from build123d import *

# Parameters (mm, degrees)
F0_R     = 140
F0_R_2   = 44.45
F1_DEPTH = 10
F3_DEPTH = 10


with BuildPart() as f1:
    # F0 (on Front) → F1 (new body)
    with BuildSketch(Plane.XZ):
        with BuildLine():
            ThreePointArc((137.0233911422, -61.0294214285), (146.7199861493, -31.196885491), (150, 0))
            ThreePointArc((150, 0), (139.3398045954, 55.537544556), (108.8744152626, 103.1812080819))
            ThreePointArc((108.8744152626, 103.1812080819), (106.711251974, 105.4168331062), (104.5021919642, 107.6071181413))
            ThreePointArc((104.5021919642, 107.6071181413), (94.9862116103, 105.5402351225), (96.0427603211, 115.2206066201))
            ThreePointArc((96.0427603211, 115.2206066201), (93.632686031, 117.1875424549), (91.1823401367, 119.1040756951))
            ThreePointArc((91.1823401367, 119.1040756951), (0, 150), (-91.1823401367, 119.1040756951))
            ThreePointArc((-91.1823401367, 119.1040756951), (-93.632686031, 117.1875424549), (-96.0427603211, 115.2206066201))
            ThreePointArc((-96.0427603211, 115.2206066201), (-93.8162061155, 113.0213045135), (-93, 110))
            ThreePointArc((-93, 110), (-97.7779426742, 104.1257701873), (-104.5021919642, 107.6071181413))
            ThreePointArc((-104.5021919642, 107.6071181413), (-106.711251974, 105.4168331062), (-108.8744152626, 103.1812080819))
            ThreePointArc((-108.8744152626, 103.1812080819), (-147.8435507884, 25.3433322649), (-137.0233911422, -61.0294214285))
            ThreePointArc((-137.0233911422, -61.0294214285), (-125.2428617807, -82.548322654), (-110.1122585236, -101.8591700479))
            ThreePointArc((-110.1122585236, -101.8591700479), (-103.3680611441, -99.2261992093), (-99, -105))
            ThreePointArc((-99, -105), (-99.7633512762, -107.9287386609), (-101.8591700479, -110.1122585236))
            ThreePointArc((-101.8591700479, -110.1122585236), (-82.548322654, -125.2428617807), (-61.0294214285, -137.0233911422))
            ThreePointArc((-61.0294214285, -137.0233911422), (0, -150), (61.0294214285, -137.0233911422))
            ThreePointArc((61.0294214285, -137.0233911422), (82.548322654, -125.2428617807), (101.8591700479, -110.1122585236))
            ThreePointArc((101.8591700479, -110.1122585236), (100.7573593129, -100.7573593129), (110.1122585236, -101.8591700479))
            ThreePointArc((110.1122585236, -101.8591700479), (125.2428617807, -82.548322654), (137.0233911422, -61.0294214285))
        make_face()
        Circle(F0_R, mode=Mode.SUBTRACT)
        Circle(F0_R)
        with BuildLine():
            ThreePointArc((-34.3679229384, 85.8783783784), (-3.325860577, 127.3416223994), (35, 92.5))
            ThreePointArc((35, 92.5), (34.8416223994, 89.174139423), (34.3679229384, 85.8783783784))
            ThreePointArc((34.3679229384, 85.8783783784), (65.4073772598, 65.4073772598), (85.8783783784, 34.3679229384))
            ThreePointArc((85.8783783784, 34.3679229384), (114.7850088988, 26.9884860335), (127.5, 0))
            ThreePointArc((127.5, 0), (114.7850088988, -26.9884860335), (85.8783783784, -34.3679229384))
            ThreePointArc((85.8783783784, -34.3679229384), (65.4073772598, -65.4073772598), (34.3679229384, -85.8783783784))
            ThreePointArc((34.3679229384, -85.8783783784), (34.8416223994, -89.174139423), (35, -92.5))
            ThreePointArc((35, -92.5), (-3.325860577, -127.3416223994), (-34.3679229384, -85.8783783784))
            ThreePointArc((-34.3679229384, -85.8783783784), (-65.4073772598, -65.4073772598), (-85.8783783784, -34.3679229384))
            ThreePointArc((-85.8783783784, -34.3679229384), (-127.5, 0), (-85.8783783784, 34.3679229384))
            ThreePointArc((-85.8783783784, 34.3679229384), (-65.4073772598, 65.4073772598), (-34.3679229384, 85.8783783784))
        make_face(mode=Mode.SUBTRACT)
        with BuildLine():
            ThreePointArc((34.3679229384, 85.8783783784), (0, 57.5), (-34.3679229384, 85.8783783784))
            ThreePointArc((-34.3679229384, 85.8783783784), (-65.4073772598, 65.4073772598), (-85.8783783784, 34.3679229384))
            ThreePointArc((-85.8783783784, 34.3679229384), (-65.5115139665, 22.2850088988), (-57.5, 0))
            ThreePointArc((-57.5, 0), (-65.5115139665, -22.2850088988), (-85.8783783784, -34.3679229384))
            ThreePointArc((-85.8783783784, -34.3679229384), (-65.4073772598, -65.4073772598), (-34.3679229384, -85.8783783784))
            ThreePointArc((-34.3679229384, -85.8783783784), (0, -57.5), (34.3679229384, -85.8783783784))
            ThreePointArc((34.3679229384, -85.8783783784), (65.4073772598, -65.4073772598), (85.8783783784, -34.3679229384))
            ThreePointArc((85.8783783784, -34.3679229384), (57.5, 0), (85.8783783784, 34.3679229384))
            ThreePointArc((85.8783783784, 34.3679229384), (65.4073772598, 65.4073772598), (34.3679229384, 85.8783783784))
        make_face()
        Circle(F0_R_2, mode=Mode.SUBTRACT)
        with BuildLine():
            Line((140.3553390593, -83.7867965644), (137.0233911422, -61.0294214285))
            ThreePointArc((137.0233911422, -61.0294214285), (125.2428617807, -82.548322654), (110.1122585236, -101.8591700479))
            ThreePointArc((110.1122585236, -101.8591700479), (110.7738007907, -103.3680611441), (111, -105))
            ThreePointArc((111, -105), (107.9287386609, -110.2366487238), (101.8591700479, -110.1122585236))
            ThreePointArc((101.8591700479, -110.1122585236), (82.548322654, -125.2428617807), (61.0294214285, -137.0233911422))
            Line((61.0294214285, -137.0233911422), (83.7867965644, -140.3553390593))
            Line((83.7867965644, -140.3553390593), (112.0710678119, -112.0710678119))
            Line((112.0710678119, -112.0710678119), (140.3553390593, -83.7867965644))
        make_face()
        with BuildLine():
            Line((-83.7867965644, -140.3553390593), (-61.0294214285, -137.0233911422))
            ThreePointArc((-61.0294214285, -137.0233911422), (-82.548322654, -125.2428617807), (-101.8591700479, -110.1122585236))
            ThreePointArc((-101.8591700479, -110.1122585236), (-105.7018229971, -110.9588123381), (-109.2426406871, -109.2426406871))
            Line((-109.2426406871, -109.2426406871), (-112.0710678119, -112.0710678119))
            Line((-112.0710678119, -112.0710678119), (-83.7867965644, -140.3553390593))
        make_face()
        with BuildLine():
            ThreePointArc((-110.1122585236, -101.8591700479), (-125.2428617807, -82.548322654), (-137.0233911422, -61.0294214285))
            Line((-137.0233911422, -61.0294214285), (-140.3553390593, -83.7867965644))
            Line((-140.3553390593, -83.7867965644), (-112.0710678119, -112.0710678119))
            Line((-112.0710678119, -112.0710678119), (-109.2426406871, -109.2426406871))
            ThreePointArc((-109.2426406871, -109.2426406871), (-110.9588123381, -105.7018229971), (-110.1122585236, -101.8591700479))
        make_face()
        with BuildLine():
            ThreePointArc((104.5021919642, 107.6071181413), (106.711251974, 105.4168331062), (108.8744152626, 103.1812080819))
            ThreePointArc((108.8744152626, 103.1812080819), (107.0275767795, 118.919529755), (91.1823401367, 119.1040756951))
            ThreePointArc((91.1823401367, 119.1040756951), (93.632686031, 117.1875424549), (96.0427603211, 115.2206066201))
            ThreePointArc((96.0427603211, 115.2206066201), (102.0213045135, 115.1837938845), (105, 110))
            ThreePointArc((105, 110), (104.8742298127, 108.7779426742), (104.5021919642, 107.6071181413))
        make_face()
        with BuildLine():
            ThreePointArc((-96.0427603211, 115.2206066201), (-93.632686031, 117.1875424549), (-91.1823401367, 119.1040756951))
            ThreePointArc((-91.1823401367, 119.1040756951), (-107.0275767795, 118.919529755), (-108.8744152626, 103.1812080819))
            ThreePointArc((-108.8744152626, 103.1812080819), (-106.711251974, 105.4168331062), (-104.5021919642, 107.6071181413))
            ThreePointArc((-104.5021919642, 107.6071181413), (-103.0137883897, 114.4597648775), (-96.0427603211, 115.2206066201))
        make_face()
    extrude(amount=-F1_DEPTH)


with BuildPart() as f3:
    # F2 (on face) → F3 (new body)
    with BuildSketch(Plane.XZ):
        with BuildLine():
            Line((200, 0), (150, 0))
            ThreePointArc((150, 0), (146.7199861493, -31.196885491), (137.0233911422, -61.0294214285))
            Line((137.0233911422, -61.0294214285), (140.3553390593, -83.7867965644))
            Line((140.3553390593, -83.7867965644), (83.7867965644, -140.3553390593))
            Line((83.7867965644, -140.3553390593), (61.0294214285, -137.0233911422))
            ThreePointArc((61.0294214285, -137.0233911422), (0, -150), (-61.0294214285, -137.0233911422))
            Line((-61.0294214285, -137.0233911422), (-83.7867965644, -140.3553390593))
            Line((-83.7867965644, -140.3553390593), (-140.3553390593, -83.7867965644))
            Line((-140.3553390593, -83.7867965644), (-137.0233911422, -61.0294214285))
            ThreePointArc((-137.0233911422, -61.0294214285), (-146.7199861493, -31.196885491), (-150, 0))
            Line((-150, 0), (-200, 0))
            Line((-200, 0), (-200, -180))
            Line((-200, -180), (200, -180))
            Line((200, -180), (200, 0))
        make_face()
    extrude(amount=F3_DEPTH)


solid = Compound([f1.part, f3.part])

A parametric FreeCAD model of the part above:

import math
import FreeCAD as App
import Part
import Sketcher
from FreeCAD import Vector

doc = App.newDocument("Part")
body = doc.addObject("PartDesign::Body", "Body")

sketch1 = body.newObject("Sketcher::SketchObject", "Sketch")
sketch1.AttachmentSupport = (doc.getObject("XZ_Plane"), [""])
sketch1.MapMode = "FlatFace"
sketch1.addGeometry([
    Part.ArcOfCircle(Part.Circle(Vector(0, 0, 0), Vector(0, 0, 1), 150), math.radians(-24), math.radians(0)),
    Part.ArcOfCircle(Part.Circle(Vector(0, 0, 0), Vector(0, 0, 1), 150), math.radians(0), math.radians(43)),
    Part.ArcOfCircle(Part.Circle(Vector(99, 110, 0), Vector(0, 0, 1), 12), math.radians(-35), math.radians(131)),
    Part.ArcOfCircle(Part.Circle(Vector(0, 0, 0), Vector(0, 0, 1), 150), math.radians(53), math.radians(127)),
    Part.ArcOfCircle(Part.Circle(Vector(-99, 110, 0), Vector(0, 0, 1), 12), math.radians(49), math.radians(215)),
    Part.ArcOfCircle(Part.Circle(Vector(0, 0, 0), Vector(0, 0, 1), 150), math.radians(137), math.radians(204)),
    Part.LineSegment(Vector(-137, -61, 0), Vector(-140.4, -83.8, 0)),
    Part.LineSegment(Vector(-140.4, -83.8, 0), Vector(-112.1, -112.1, 0)),
    Part.LineSegment(Vector(-112.1, -112.1, 0), Vector(-83.8, -140.4, 0)),
    Part.LineSegment(Vector(-83.8, -140.4, 0), Vector(-61, -137, 0)),
    Part.ArcOfCircle(Part.Circle(Vector(0, 0, 0), Vector(0, 0, 1), 150), math.radians(-114), math.radians(-66)),
    Part.LineSegment(Vector(61, -137, 0), Vector(83.8, -140.4, 0)),
    Part.LineSegment(Vector(83.8, -140.4, 0), Vector(112.1, -112.1, 0)),
    Part.LineSegment(Vector(112.1, -112.1, 0), Vector(140.4, -83.8, 0)),
    Part.LineSegment(Vector(140.4, -83.8, 0), Vector(137, -61, 0)),
    Part.ArcOfCircle(Part.Circle(Vector(-99, 110, 0), Vector(0, 0, 1), 6), math.radians(0), math.radians(60)),
    Part.ArcOfCircle(Part.Circle(Vector(-99, 110, 0), Vector(0, 0, 1), 6), math.radians(-156), math.radians(0)),
    Part.ArcOfCircle(Part.Circle(Vector(-99, 110, 0), Vector(0, 0, 1), 6), math.radians(60), math.radians(204)),
    Part.ArcOfCircle(Part.Circle(Vector(99, 110, 0), Vector(0, 0, 1), 6), math.radians(120), math.radians(336)),
    Part.ArcOfCircle(Part.Circle(Vector(99, 110, 0), Vector(0, 0, 1), 6), math.radians(0), math.radians(120)),
    Part.ArcOfCircle(Part.Circle(Vector(99, 110, 0), Vector(0, 0, 1), 6), math.radians(-24), math.radians(0)),
    Part.ArcOfCircle(Part.Circle(Vector(-105, -105, 0), Vector(0, 0, 1), 6), math.radians(0), math.radians(148)),
    Part.ArcOfCircle(Part.Circle(Vector(-105, -105, 0), Vector(0, 0, 1), 6), math.radians(-58), math.radians(0)),
    Part.ArcOfCircle(Part.Circle(Vector(-105, -105, 0), Vector(0, 0, 1), 6), math.radians(-135), math.radians(-58)),
    Part.ArcOfCircle(Part.Circle(Vector(-105, -105, 0), Vector(0, 0, 1), 6), math.radians(148), math.radians(225)),
    Part.ArcOfCircle(Part.Circle(Vector(105, -105, 0), Vector(0, 0, 1), 6), math.radians(0), math.radians(32)),
    Part.ArcOfCircle(Part.Circle(Vector(105, -105, 0), Vector(0, 0, 1), 6), math.radians(32), math.radians(360)),
    Part.ArcOfCircle(Part.Circle(Vector(0, -92.5, 0), Vector(0, 0, 1), 35), math.radians(11), math.radians(360)),
    Part.ArcOfCircle(Part.Circle(Vector(0, -92.5, 0), Vector(0, 0, 1), 35), math.radians(0), math.radians(10.91)),
    Part.Circle(Vector(-92.5, 0, 0), Vector(0, 0, 1), 35),
    Part.Circle(Vector(0, 0, 0), Vector(0, 0, 1), 44.5),
    Part.ArcOfCircle(Part.Circle(Vector(0, 92.5, 0), Vector(0, 0, 1), 35), math.radians(-10.91), math.radians(0)),
    Part.ArcOfCircle(Part.Circle(Vector(0, 92.5, 0), Vector(0, 0, 1), 35), math.radians(0), math.radians(349)),
    Part.Circle(Vector(92.5, 0, 0), Vector(0, 0, 1), 35),
], False)
sketch1.addConstraint([
    Sketcher.Constraint("Tangent", 0, 2, 1, 1),
    Sketcher.Constraint("Coincident", 1, 2, 2, 1),
    Sketcher.Constraint("Coincident", 2, 2, 3, 1),
    Sketcher.Constraint("Coincident", 3, 2, 4, 1),
    Sketcher.Constraint("Coincident", 4, 2, 5, 1),
    Sketcher.Constraint("Coincident", 5, 2, 6, 1),
    Sketcher.Constraint("Coincident", 6, 2, 7, 1),
    Sketcher.Constraint("Coincident", 7, 2, 8, 1),
    Sketcher.Constraint("Coincident", 8, 2, 9, 1),
    Sketcher.Constraint("Coincident", 9, 2, 10, 1),
    Sketcher.Constraint("Coincident", 10, 2, 11, 1),
    Sketcher.Constraint("Coincident", 11, 2, 12, 1),
    Sketcher.Constraint("Coincident", 12, 2, 13, 1),
    Sketcher.Constraint("Coincident", 13, 2, 14, 1),
    Sketcher.Constraint("Coincident", 14, 2, 0, 1),
    Sketcher.Constraint("Tangent", 15, 1, 16, 2),
    Sketcher.Constraint("Tangent", 16, 1, 17, 2),
    Sketcher.Constraint("Tangent", 17, 1, 15, 2),
    Sketcher.Constraint("Tangent", 18, 1, 19, 2),
    Sketcher.Constraint("Tangent", 19, 1, 20, 2),
    Sketcher.Constraint("Tangent", 20, 1, 18, 2),
    Sketcher.Constraint("Tangent", 21, 1, 22, 2),
    Sketcher.Constraint("Tangent", 22, 1, 23, 2),
    Sketcher.Constraint("Tangent", 23, 1, 24, 2),
    Sketcher.Constraint("Tangent", 24, 1, 21, 2),
    Sketcher.Constraint("Tangent", 25, 1, 26, 2),
    Sketcher.Constraint("Coincident", 26, 1, 25, 2),
    Sketcher.Constraint("Tangent", 27, 1, 28, 2),
    Sketcher.Constraint("Coincident", 28, 1, 27, 2),
    Sketcher.Constraint("Tangent", 31, 1, 32, 2),
    Sketcher.Constraint("Coincident", 32, 1, 31, 2),
    Sketcher.Constraint("Coincident", 0, 3, -1, 1),
    Sketcher.Constraint("Coincident", 3, 3, -1, 1),
    Sketcher.Constraint("Coincident", 5, 3, -1, 1),
    Sketcher.Constraint("Coincident", 10, 3, -1, 1),
    Sketcher.Constraint("Coincident", 30, 3, -1, 1),
    Sketcher.Constraint("Coincident", 15, 3, 4, 3),
    Sketcher.Constraint("Coincident", 18, 3, 2, 3),
    Sketcher.Constraint("Equal", 0, 1),
    Sketcher.Constraint("Equal", 1, 3),
    Sketcher.Constraint("Equal", 2, 4),
    Sketcher.Constraint("Equal", 3, 5),
    Sketcher.Constraint("Equal", 5, 10),
    Sketcher.Constraint("Equal", 17, 18),
    Sketcher.Constraint("Equal", 20, 21),
    Sketcher.Constraint("Equal", 21, 22),
    Sketcher.Constraint("Equal", 24, 25),
    Sketcher.Constraint("Equal", 28, 29),
    Sketcher.Constraint("Equal", 29, 31),
    Sketcher.Constraint("Equal", 32, 33),
    Sketcher.Constraint("Symmetric", 27, 3, 31, 3, -1, 1),
    Sketcher.Constraint("Symmetric", 29, 3, 33, 3, -1, 1),
    Sketcher.Constraint("Symmetric", 2, 3, 4, 3, -2),
    Sketcher.Constraint("Symmetric", 21, 3, 25, 3, -2),
    Sketcher.Constraint("Symmetric", 8, 2, 11, 2, -2),
    Sketcher.Constraint("Symmetric", 7, 2, 12, 2, -2),
    Sketcher.Constraint("Symmetric", 6, 2, 13, 2, -2),
    Sketcher.Constraint("Symmetric", 27, 1, 31, 1, -1),
    Sketcher.Constraint("PointOnObject", 29, 3, -1),
    Sketcher.Constraint("PointOnObject", 0, 2, -1),
    Sketcher.Constraint("Parallel", 7, 8),
    Sketcher.Constraint("Perpendicular", 6, 11),
    Sketcher.Constraint("Perpendicular", 8, 12),
    Sketcher.Constraint("Perpendicular", 9, 14),
    Sketcher.Constraint("Horizontal", 9, 2, 10, 2),
    Sketcher.Constraint("Horizontal", 20, 3, 15, 1),
    Sketcher.Constraint("Horizontal", 17, 1, 18, 1),
    Sketcher.Constraint("Horizontal", 15, 1, 19, 1),
    Sketcher.Constraint("Horizontal", 16, 1, 20, 1),
    Sketcher.Constraint("Horizontal", 26, 3, 21, 1),
    Sketcher.Constraint("Horizontal", 21, 1, 25, 1),
    Sketcher.Constraint("Horizontal", 24, 1, 26, 1),
    Sketcher.Constraint("Horizontal", 27, 3, 28, 1),
    Sketcher.Constraint("Horizontal", 31, 3, 32, 1),
    Sketcher.Constraint("Vertical", 26, 3, 19, 1),
    Sketcher.Constraint("Equal", 7, 8),
    Sketcher.Constraint("Equal", 6, 9),
    Sketcher.Constraint("Diameter", 29, 70.0),
    Sketcher.Constraint("Radius", 0, 150.0),
    Sketcher.Constraint("Radius", 2, 12.0),
    Sketcher.Constraint("Radius", 15, 6.0),
    Sketcher.Constraint("Diameter", 30, 88.9),
    Sketcher.Constraint("Distance", 6, 23.0),
    Sketcher.Constraint("Distance", 7, 40.0),
    Sketcher.Constraint("DistanceX", -1, 1, 2, 3, 99.0),
    Sketcher.Constraint("DistanceY", -1, 1, 2, 3, 110.0),
    Sketcher.Constraint("DistanceY", 21, 3, -1, 1, 105.0),
    Sketcher.Constraint("DistanceY", 27, 3, -1, 1, 92.5),
    Sketcher.Constraint("DistanceX", 29, 3, -1, 1, 92.5),
    Sketcher.Constraint("DistanceX", 27, 1, 10, 2, 26.661498),
    Sketcher.Constraint("DistanceX", 6, 2, -1, 1, 140.355339),
    Sketcher.Constraint("DistanceX", 16, 1, -1, 1, 104.502192),
    Sketcher.Constraint("DistanceX", 17, 1, -1, 1, 96.04276),
    Sketcher.Constraint("DistanceX", 22, 1, -1, 1, 101.85917),
    Sketcher.Constraint("DistanceX", 23, 1, -1, 1, 109.242641),
    Sketcher.Constraint("DistanceX", 24, 1, -1, 1, 110.112259),
])
pad1 = body.newObject("PartDesign::Pad", "Pad")
pad1.Profile = sketch1
pad1.Length = 10
pad1.Reversed = True
body2 = doc.addObject("PartDesign::Body", "Body001")

sketch2 = body2.newObject("Sketcher::SketchObject", "Sketch001")
sketch2.AttachmentSupport = (doc.getObject("XZ_Plane001"), [""])
sketch2.MapMode = "FlatFace"
sketch2.addGeometry([
    Part.LineSegment(Vector(200, 0, 0), Vector(150, 0, 0)),
    Part.ArcOfCircle(Part.Circle(Vector(0, 0, 0), Vector(0, 0, 1), 150), math.radians(-24), math.radians(0)),
    Part.LineSegment(Vector(137, -61, 0), Vector(140, -84, 0)),
    Part.LineSegment(Vector(140, -84, 0), Vector(84, -140, 0)),
    Part.LineSegment(Vector(84, -140, 0), Vector(61, -137, 0)),
    Part.ArcOfCircle(Part.Circle(Vector(0, 0, 0), Vector(0, 0, 1), 150), math.radians(-114), math.radians(-66)),
    Part.LineSegment(Vector(-61, -137, 0), Vector(-84, -140, 0)),
    Part.LineSegment(Vector(-84, -140, 0), Vector(-140, -84, 0)),
    Part.LineSegment(Vector(-140, -84, 0), Vector(-137, -61, 0)),
    Part.ArcOfCircle(Part.Circle(Vector(0, 0, 0), Vector(0, 0, 1), 150), math.radians(180), math.radians(204)),
    Part.LineSegment(Vector(-150, 0, 0), Vector(-200, 0, 0)),
    Part.LineSegment(Vector(-200, 0, 0), Vector(-200, -180, 0)),
    Part.LineSegment(Vector(-200, -180, 0), Vector(200, -180, 0)),
    Part.LineSegment(Vector(200, -180, 0), Vector(200, 0, 0)),
], False)
sketch2.addConstraint([
    Sketcher.Constraint("Coincident", 0, 2, 1, 2),
    Sketcher.Constraint("Coincident", 1, 1, 2, 1),
    Sketcher.Constraint("Coincident", 2, 2, 3, 1),
    Sketcher.Constraint("Coincident", 3, 2, 4, 1),
    Sketcher.Constraint("Coincident", 4, 2, 5, 2),
    Sketcher.Constraint("Coincident", 5, 1, 6, 1),
    Sketcher.Constraint("Coincident", 6, 2, 7, 1),
    Sketcher.Constraint("Coincident", 7, 2, 8, 1),
    Sketcher.Constraint("Coincident", 8, 2, 9, 2),
    Sketcher.Constraint("Coincident", 9, 1, 10, 1),
    Sketcher.Constraint("Coincident", 10, 2, 11, 1),
    Sketcher.Constraint("Coincident", 11, 2, 12, 1),
    Sketcher.Constraint("Coincident", 12, 2, 13, 1),
    Sketcher.Constraint("Coincident", 13, 2, 0, 1),
    Sketcher.Constraint("Horizontal", 0),
    Sketcher.Constraint("Horizontal", 10),
    Sketcher.Constraint("Vertical", 11),
    Sketcher.Constraint("Horizontal", 12),
    Sketcher.Constraint("Vertical", 13),
    Sketcher.Constraint("Coincident", 1, 3, -1, 1),
    Sketcher.Constraint("Coincident", 5, 3, -1, 1),
    Sketcher.Constraint("Coincident", 9, 3, -1, 1),
    Sketcher.Constraint("Equal", 1, 5),
    Sketcher.Constraint("Equal", 5, 9),
    Sketcher.Constraint("Symmetric", 10, 2, 13, 2, -1, 1),
    Sketcher.Constraint("Symmetric", 3, 2, 6, 2, -2),
    Sketcher.Constraint("Symmetric", 2, 2, 7, 2, -2),
    Sketcher.Constraint("PointOnObject", 0, 2, -1),
    Sketcher.Constraint("Perpendicular", 2, 6),
    Sketcher.Constraint("Perpendicular", 3, 7),
    Sketcher.Constraint("Perpendicular", 4, 8),
    Sketcher.Constraint("Horizontal", 4, 2, 5, 1),
    Sketcher.Constraint("Equal", 2, 4),
    Sketcher.Constraint("Radius", 1, 150.0),
    Sketcher.Constraint("DistanceX", 0, 2, 0, 1, 50.0),
    Sketcher.Constraint("DistanceY", 11, 2, 11, 1, 180.0),
    Sketcher.Constraint("Distance", 2, 23.0),
    Sketcher.Constraint("Distance", 3, 80.0),
    Sketcher.Constraint("DistanceX", -1, 1, 2, 2, 140.355339),
])
pad2 = body2.newObject("PartDesign::Pad", "Pad001")
pad2.Profile = sketch2
pad2.Length = 10

doc.recompute()
